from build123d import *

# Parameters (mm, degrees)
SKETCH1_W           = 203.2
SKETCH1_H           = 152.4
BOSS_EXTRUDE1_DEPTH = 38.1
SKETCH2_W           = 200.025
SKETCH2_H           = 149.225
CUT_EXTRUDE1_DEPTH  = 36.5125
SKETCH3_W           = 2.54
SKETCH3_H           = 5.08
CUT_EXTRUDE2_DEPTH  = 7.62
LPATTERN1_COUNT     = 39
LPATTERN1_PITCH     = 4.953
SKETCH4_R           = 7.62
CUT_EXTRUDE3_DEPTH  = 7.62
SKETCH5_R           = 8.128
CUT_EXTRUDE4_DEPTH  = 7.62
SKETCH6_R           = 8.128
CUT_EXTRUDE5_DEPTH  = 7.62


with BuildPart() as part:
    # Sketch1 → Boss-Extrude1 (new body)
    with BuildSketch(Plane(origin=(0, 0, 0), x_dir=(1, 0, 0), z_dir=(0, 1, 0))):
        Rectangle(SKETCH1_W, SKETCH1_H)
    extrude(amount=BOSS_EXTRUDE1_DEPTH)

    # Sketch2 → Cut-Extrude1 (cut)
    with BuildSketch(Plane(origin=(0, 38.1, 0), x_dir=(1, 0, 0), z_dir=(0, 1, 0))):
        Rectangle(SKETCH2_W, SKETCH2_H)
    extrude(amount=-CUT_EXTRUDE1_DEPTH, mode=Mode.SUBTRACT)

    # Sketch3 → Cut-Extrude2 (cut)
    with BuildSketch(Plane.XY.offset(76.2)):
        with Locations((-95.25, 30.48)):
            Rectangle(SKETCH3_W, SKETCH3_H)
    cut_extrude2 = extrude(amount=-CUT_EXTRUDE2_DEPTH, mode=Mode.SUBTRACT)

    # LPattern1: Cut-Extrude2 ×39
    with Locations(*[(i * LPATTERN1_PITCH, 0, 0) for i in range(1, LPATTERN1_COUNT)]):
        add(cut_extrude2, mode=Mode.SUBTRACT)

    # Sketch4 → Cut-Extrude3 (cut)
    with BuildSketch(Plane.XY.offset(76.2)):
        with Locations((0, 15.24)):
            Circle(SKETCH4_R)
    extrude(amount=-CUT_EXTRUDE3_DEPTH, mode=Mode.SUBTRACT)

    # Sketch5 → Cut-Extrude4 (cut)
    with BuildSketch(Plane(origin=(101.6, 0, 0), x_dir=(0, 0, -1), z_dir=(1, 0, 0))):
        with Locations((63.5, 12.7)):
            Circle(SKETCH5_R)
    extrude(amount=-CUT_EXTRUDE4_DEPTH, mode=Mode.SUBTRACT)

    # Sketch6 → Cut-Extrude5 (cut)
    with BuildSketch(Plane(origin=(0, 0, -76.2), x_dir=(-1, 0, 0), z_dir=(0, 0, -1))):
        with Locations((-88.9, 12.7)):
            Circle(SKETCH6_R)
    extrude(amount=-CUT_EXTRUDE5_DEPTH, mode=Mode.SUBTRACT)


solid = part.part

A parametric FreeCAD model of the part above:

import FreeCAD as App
import Part
import Sketcher
from FreeCAD import Vector
Q = App.Units.Quantity


def add_polygon(sketch, points):
    """Adds a closed chain of lines whose ends are joined by coincident constraints."""
    first, n = sketch.GeometryCount, len(points)
    for a, b in zip(points, points[1:] + points[:1]):
        sketch.addGeometry(Part.LineSegment(App.Vector(*a, 0), App.Vector(*b, 0)), False)
    for i in range(n):
        sketch.addConstraint(Sketcher.Constraint("Coincident", first + i, 2, first + (i + 1) % n, 1))

doc = App.newDocument("Part")
body = doc.addObject("PartDesign::Body", "Body")

# Sketch on XZ plane
sketch1 = doc.addObject("Sketcher::SketchObject", "Sketch")
body.addObject(sketch1)
sketch1.AttachmentSupport = (doc.XZ_Plane, [""])
sketch1.MapMode = "FlatFace"
add_polygon(sketch1, [(-101.6, -76.2), (-101.6, 76.2), (101.6, 76.2), (101.6, -76.2)])  # lines 0-3
sketch1.addConstraint([
    Sketcher.Constraint("Vertical", 0),
    Sketcher.Constraint("Horizontal", 1),
    Sketcher.Constraint("Vertical", 2),
    Sketcher.Constraint("Horizontal", 3),
    Sketcher.Constraint("Symmetric", 0, 2, 2, 2, -1, 1),
    Sketcher.Constraint("DistanceX", 1, 1, 1, 2, Q("8 in")),
    Sketcher.Constraint("DistanceY", 0, 1, 0, 2, Q("6 in")),
])
pad1 = doc.addObject("PartDesign::Pad", "Pad")
body.addObject(pad1)
pad1.Profile = sketch1
pad1.Length = Q("1.5 in")
pad1.Reversed = True

# Sketch on XZ plane
sketch2 = doc.addObject("Sketcher::SketchObject", "Sketch001")
body.addObject(sketch2)
sketch2.AttachmentSupport = (doc.XZ_Plane, [""])
sketch2.MapMode = "FlatFace"
sketch2.AttachmentOffset = App.Placement(Vector(0, 0, -1.5 * 25.4), App.Rotation())
add_polygon(sketch2, [(-100.0125, -74.6125), (-100.0125, 74.6125), (100.0125, 74.6125), (100.0125, -74.6125)])  # lines 0-3
sketch2.addConstraint([
    Sketcher.Constraint("Vertical", 0),
    Sketcher.Constraint("Horizontal", 1),
    Sketcher.Constraint("Vertical", 2),
    Sketcher.Constraint("Horizontal", 3),
    Sketcher.Constraint("Symmetric", 0, 2, 2, 2, -1, 1),
    Sketcher.Constraint("DistanceX", 1, 1, 1, 2, Q("7.875 in")),
    Sketcher.Constraint("DistanceY", 0, 1, 0, 2, Q("5.875 in")),
])
pocket1 = doc.addObject("PartDesign::Pocket", "Pocket")
body.addObject(pocket1)
pocket1.Profile = sketch2
pocket1.Length = Q("1.4375 in")
pocket1.Reversed = True

# Sketch on XY plane
sketch3 = doc.addObject("Sketcher::SketchObject", "Sketch002")
body.addObject(sketch3)
sketch3.AttachmentSupport = (doc.XY_Plane, [""])
sketch3.MapMode = "FlatFace"
sketch3.AttachmentOffset = App.Placement(Vector(0, 0, 3 * 25.4), App.Rotation())
add_polygon(sketch3, [(-96.52, 33.02), (-96.52, 27.94), (-93.98, 27.94), (-93.98, 33.02)])  # lines 0-3
sketch3.addConstraint([
    Sketcher.Constraint("Vertical", 0),
    Sketcher.Constraint("Horizontal", 1),
    Sketcher.Constraint("Vertical", 2),
    Sketcher.Constraint("Horizontal", 3),
    Sketcher.Constraint("DistanceX", 1, 1, 1, 2, Q("0.1 in")),
    Sketcher.Constraint("DistanceY", 0, 2, 0, 1, Q("0.2 in")),
    Sketcher.Constraint("DistanceX", 0, 2, -1, 1, Q("3.8 in")),
    Sketcher.Constraint("DistanceY", -1, 1, 0, 2, Q("1.1 in")),
])
pocket2 = doc.addObject("PartDesign::Pocket", "Pocket001")
body.addObject(pocket2)
pocket2.Profile = sketch3
pocket2.Length = Q("0.3 in")
doc.recompute()

linearpattern = doc.addObject("PartDesign::LinearPattern", "LinearPattern")
body.addObject(linearpattern)
linearpattern.Originals = [pocket2]
linearpattern.Direction = (doc.X_Axis, [""])
linearpattern.Mode = "offset"
linearpattern.Offset = Q("0.195 in")
linearpattern.Occurrences = 39
body.Tip = linearpattern

# Sketch on XY plane
sketch4 = doc.addObject("Sketcher::SketchObject", "Sketch003")
body.addObject(sketch4)
sketch4.AttachmentSupport = (doc.XY_Plane, [""])
sketch4.MapMode = "FlatFace"
sketch4.AttachmentOffset = App.Placement(Vector(0, 0, 3 * 25.4), App.Rotation())
sketch4.addGeometry(Part.Circle(Vector(0, 15.24, 0), Vector(0, 0, 1), 7.62), False)
sketch4.addConstraint([
    Sketcher.Constraint("PointOnObject", 0, 3, -2),
    Sketcher.Constraint("Diameter", 0, Q("0.6 in")),
    Sketcher.Constraint("DistanceY", -1, 1, 0, 3, Q("0.6 in")),
])
pocket3 = doc.addObject("PartDesign::Pocket", "Pocket002")
body.addObject(pocket3)
pocket3.Profile = sketch4
pocket3.Length = Q("0.3 in")

# Sketch on YZ plane
sketch5 = doc.addObject("Sketcher::SketchObject", "Sketch004")
body.addObject(sketch5)
sketch5.AttachmentSupport = (doc.YZ_Plane, [""])
sketch5.MapMode = "FlatFace"
sketch5.AttachmentOffset = App.Placement(Vector(0, 0, 4 * 25.4), App.Rotation())
sketch5.addGeometry(Part.Circle(Vector(12.7, -63.5, 0), Vector(0, 0, 1), 8.128), False)
sketch5.addConstraint([
    Sketcher.Constraint("Diameter", 0, Q("0.64 in")),
    Sketcher.Constraint("DistanceX", -1, 1, 0, 3, Q("0.5 in")),
    Sketcher.Constraint("DistanceY", 0, 3, -1, 1, Q("2.5 in")),
])
pocket4 = doc.addObject("PartDesign::Pocket", "Pocket003")
body.addObject(pocket4)
pocket4.Profile = sketch5
pocket4.Length = Q("0.3 in")

# Sketch on XY plane
sketch6 = doc.addObject("Sketcher::SketchObject", "Sketch005")
body.addObject(sketch6)
sketch6.AttachmentSupport = (doc.XY_Plane, [""])
sketch6.MapMode = "FlatFace"
sketch6.AttachmentOffset = App.Placement(Vector(0, 0, -3 * 25.4), App.Rotation())
sketch6.addGeometry(Part.Circle(Vector(88.9, 12.7, 0), Vector(0, 0, 1), 8.128), False)
sketch6.addConstraint([
    Sketcher.Constraint("Diameter", 0, Q("0.64 in")),
    Sketcher.Constraint("DistanceX", -1, 1, 0, 3, Q("3.5 in")),
    Sketcher.Constraint("DistanceY", -1, 1, 0, 3, Q("0.5 in")),
])
pocket5 = doc.addObject("PartDesign::Pocket", "Pocket004")
body.addObject(pocket5)
pocket5.Profile = sketch6
pocket5.Length = Q("0.3 in")
pocket5.Reversed = True

doc.recompute()
